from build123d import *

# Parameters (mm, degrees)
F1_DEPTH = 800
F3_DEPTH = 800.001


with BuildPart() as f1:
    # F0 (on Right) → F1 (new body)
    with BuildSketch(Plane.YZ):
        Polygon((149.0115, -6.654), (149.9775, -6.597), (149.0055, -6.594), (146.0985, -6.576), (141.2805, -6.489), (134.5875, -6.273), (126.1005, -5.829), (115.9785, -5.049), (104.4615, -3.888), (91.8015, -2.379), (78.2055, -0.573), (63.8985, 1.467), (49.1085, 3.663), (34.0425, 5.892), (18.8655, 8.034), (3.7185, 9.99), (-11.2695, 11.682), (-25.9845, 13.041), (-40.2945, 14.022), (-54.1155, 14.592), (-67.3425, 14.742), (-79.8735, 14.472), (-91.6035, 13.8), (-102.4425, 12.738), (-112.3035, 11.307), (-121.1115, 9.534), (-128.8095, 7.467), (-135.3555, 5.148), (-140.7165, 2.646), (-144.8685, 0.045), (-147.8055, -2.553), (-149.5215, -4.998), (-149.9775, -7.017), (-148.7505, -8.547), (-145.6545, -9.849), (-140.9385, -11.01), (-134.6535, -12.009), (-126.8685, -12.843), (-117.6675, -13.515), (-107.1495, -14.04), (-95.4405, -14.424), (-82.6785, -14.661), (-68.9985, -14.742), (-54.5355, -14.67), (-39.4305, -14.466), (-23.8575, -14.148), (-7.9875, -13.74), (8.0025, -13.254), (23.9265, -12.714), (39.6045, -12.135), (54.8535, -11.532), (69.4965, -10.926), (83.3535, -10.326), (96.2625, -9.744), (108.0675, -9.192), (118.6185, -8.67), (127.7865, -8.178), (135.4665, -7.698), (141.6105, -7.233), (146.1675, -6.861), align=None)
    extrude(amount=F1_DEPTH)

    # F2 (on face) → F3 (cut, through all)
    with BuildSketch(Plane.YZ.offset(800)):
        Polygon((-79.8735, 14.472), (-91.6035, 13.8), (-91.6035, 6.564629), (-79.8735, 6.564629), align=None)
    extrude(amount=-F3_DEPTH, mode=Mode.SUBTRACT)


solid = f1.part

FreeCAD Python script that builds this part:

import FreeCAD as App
import Part
import Sketcher

V = App.Vector
Q = App.Units.Quantity

doc = App.newDocument("Part")
body = doc.addObject("PartDesign::Body", "Body")

# Sketch on YZ plane
sketch1 = doc.addObject("Sketcher::SketchObject", "Sketch")
body.addObject(sketch1)
sketch1.AttachmentSupport = (doc.YZ_Plane, [""])
sketch1.MapMode = "FlatFace"
sketch1.addGeometry([
    Part.LineSegment(V(149.0115, -6.654, 0), V(149.9775, -6.597, 0)),  # 0
    Part.LineSegment(V(149.9775, -6.597, 0), V(149.0055, -6.594, 0)),  # 1
    Part.LineSegment(V(149.0055, -6.594, 0), V(146.0985, -6.576, 0)),  # 2
    Part.LineSegment(V(146.0985, -6.576, 0), V(141.2805, -6.489, 0)),  # 3
    Part.LineSegment(V(141.2805, -6.489, 0), V(134.5875, -6.273, 0)),  # 4
    Part.LineSegment(V(134.5875, -6.273, 0), V(126.1005, -5.829, 0)),  # 5
    Part.LineSegment(V(126.1005, -5.829, 0), V(115.9785, -5.049, 0)),  # 6
    Part.LineSegment(V(115.9785, -5.049, 0), V(104.4615, -3.888, 0)),  # 7
    Part.LineSegment(V(104.4615, -3.888, 0), V(91.8015, -2.379, 0)),  # 8
    Part.LineSegment(V(91.8015, -2.379, 0), V(78.2055, -0.573, 0)),  # 9
    Part.LineSegment(V(78.2055, -0.573, 0), V(63.8985, 1.467, 0)),  # 10
    Part.LineSegment(V(63.8985, 1.467, 0), V(49.1085, 3.663, 0)),  # 11
    Part.LineSegment(V(49.1085, 3.663, 0), V(34.0425, 5.892, 0)),  # 12
    Part.LineSegment(V(34.0425, 5.892, 0), V(18.8655, 8.034, 0)),  # 13
    Part.LineSegment(V(18.8655, 8.034, 0), V(3.7185, 9.99, 0)),  # 14
    Part.LineSegment(V(3.7185, 9.99, 0), V(-11.2695, 11.682, 0)),  # 15
    Part.LineSegment(V(-11.2695, 11.682, 0), V(-25.9845, 13.041, 0)),  # 16
    Part.LineSegment(V(-25.9845, 13.041, 0), V(-40.2945, 14.022, 0)),  # 17
    Part.LineSegment(V(-40.2945, 14.022, 0), V(-54.1155, 14.592, 0)),  # 18
    Part.LineSegment(V(-54.1155, 14.592, 0), V(-67.3425, 14.742, 0)),  # 19
    Part.LineSegment(V(-67.3425, 14.742, 0), V(-79.8735, 14.472, 0)),  # 20
    Part.LineSegment(V(-79.8735, 14.472, 0), V(-91.6035, 13.8, 0)),  # 21
    Part.LineSegment(V(-91.6035, 13.8, 0), V(-102.4425, 12.738, 0)),  # 22
    Part.LineSegment(V(-102.4425, 12.738, 0), V(-112.3035, 11.307, 0)),  # 23
    Part.LineSegment(V(-112.3035, 11.307, 0), V(-121.1115, 9.534, 0)),  # 24
    Part.LineSegment(V(-121.1115, 9.534, 0), V(-128.8095, 7.467, 0)),  # 25
    Part.LineSegment(V(-128.8095, 7.467, 0), V(-135.3555, 5.148, 0)),  # 26
    Part.LineSegment(V(-135.3555, 5.148, 0), V(-140.7165, 2.646, 0)),  # 27
    Part.LineSegment(V(-140.7165, 2.646, 0), V(-144.8685, 0.045, 0)),  # 28
    Part.LineSegment(V(-144.8685, 0.045, 0), V(-147.8055, -2.553, 0)),  # 29
    Part.LineSegment(V(-147.8055, -2.553, 0), V(-149.5215, -4.998, 0)),  # 30
    Part.LineSegment(V(-149.5215, -4.998, 0), V(-149.9775, -7.017, 0)),  # 31
    Part.LineSegment(V(-149.9775, -7.017, 0), V(-148.7505, -8.547, 0)),  # 32
    Part.LineSegment(V(-148.7505, -8.547, 0), V(-145.6545, -9.849, 0)),  # 33
    Part.LineSegment(V(-145.6545, -9.849, 0), V(-140.9385, -11.01, 0)),  # 34
    Part.LineSegment(V(-140.9385, -11.01, 0), V(-134.6535, -12.009, 0)),  # 35
    Part.LineSegment(V(-134.6535, -12.009, 0), V(-126.8685, -12.843, 0)),  # 36
    Part.LineSegment(V(-126.8685, -12.843, 0), V(-117.6675, -13.515, 0)),  # 37
    Part.LineSegment(V(-117.6675, -13.515, 0), V(-107.1495, -14.04, 0)),  # 38
    Part.LineSegment(V(-107.1495, -14.04, 0), V(-95.4405, -14.424, 0)),  # 39
    Part.LineSegment(V(-95.4405, -14.424, 0), V(-82.6785, -14.661, 0)),  # 40
    Part.LineSegment(V(-82.6785, -14.661, 0), V(-68.9985, -14.742, 0)),  # 41
    Part.LineSegment(V(-68.9985, -14.742, 0), V(-54.5355, -14.67, 0)),  # 42
    Part.LineSegment(V(-54.5355, -14.67, 0), V(-39.4305, -14.466, 0)),  # 43
    Part.LineSegment(V(-39.4305, -14.466, 0), V(-23.8575, -14.148, 0)),  # 44
    Part.LineSegment(V(-23.8575, -14.148, 0), V(-7.9875, -13.74, 0)),  # 45
    Part.LineSegment(V(-7.9875, -13.74, 0), V(8.0025, -13.254, 0)),  # 46
    Part.LineSegment(V(8.0025, -13.254, 0), V(23.9265, -12.714, 0)),  # 47
    Part.LineSegment(V(23.9265, -12.714, 0), V(39.6045, -12.135, 0)),  # 48
    Part.LineSegment(V(39.6045, -12.135, 0), V(54.8535, -11.532, 0)),  # 49
    Part.LineSegment(V(54.8535, -11.532, 0), V(69.4965, -10.926, 0)),  # 50
    Part.LineSegment(V(69.4965, -10.926, 0), V(83.3535, -10.326, 0)),  # 51
    Part.LineSegment(V(83.3535, -10.326, 0), V(96.2625, -9.744, 0)),  # 52
    Part.LineSegment(V(96.2625, -9.744, 0), V(108.0675, -9.192, 0)),  # 53
    Part.LineSegment(V(108.0675, -9.192, 0), V(118.6185, -8.67, 0)),  # 54
    Part.LineSegment(V(118.6185, -8.67, 0), V(127.7865, -8.178, 0)),  # 55
    Part.LineSegment(V(127.7865, -8.178, 0), V(135.4665, -7.698, 0)),  # 56
    Part.LineSegment(V(135.4665, -7.698, 0), V(141.6105, -7.233, 0)),  # 57
    Part.LineSegment(V(141.6105, -7.233, 0), V(146.1675, -6.861, 0)),  # 58
    Part.LineSegment(V(146.1675, -6.861, 0), V(149.0115, -6.654, 0)),  # 59
], False)
sketch1.addConstraint([
    Sketcher.Constraint("Coincident", 0, 2, 1, 1),
    Sketcher.Constraint("Coincident", 1, 2, 2, 1),
    Sketcher.Constraint("Coincident", 2, 2, 3, 1),
    Sketcher.Constraint("Coincident", 3, 2, 4, 1),
    Sketcher.Constraint("Coincident", 4, 2, 5, 1),
    Sketcher.Constraint("Coincident", 5, 2, 6, 1),
    Sketcher.Constraint("Coincident", 6, 2, 7, 1),
    Sketcher.Constraint("Coincident", 7, 2, 8, 1),
    Sketcher.Constraint("Coincident", 8, 2, 9, 1),
    Sketcher.Constraint("Coincident", 9, 2, 10, 1),
    Sketcher.Constraint("Coincident", 10, 2, 11, 1),
    Sketcher.Constraint("Coincident", 11, 2, 12, 1),
    Sketcher.Constraint("Coincident", 12, 2, 13, 1),
    Sketcher.Constraint("Coincident", 13, 2, 14, 1),
    Sketcher.Constraint("Coincident", 14, 2, 15, 1),
    Sketcher.Constraint("Coincident", 15, 2, 16, 1),
    Sketcher.Constraint("Coincident", 16, 2, 17, 1),
    Sketcher.Constraint("Coincident", 17, 2, 18, 1),
    Sketcher.Constraint("Coincident", 18, 2, 19, 1),
    Sketcher.Constraint("Coincident", 19, 2, 20, 1),
    Sketcher.Constraint("Coincident", 20, 2, 21, 1),
    Sketcher.Constraint("Coincident", 21, 2, 22, 1),
    Sketcher.Constraint("Coincident", 22, 2, 23, 1),
    Sketcher.Constraint("Coincident", 23, 2, 24, 1),
    Sketcher.Constraint("Coincident", 24, 2, 25, 1),
    Sketcher.Constraint("Coincident", 25, 2, 26, 1),
    Sketcher.Constraint("Coincident", 26, 2, 27, 1),
    Sketcher.Constraint("Coincident", 27, 2, 28, 1),
    Sketcher.Constraint("Coincident", 28, 2, 29, 1),
    Sketcher.Constraint("Coincident", 29, 2, 30, 1),
    Sketcher.Constraint("Coincident", 30, 2, 31, 1),
    Sketcher.Constraint("Coincident", 31, 2, 32, 1),
    Sketcher.Constraint("Coincident", 32, 2, 33, 1),
    Sketcher.Constraint("Coincident", 33, 2, 34, 1),
    Sketcher.Constraint("Coincident", 34, 2, 35, 1),
    Sketcher.Constraint("Coincident", 35, 2, 36, 1),
    Sketcher.Constraint("Coincident", 36, 2, 37, 1),
    Sketcher.Constraint("Coincident", 37, 2, 38, 1),
    Sketcher.Constraint("Coincident", 38, 2, 39, 1),
    Sketcher.Constraint("Coincident", 39, 2, 40, 1),
    Sketcher.Constraint("Coincident", 40, 2, 41, 1),
    Sketcher.Constraint("Coincident", 41, 2, 42, 1),
    Sketcher.Constraint("Coincident", 42, 2, 43, 1),
    Sketcher.Constraint("Coincident", 43, 2, 44, 1),
    Sketcher.Constraint("Coincident", 44, 2, 45, 1),
    Sketcher.Constraint("Coincident", 45, 2, 46, 1),
    Sketcher.Constraint("Coincident", 46, 2, 47, 1),
    Sketcher.Constraint("Coincident", 47, 2, 48, 1),
    Sketcher.Constraint("Coincident", 48, 2, 49, 1),
    Sketcher.Constraint("Coincident", 49, 2, 50, 1),
    Sketcher.Constraint("Coincident", 50, 2, 51, 1),
    Sketcher.Constraint("Coincident", 51, 2, 52, 1),
    Sketcher.Constraint("Coincident", 52, 2, 53, 1),
    Sketcher.Constraint("Coincident", 53, 2, 54, 1),
    Sketcher.Constraint("Coincident", 54, 2, 55, 1),
    Sketcher.Constraint("Coincident", 55, 2, 56, 1),
    Sketcher.Constraint("Coincident", 56, 2, 57, 1),
    Sketcher.Constraint("Coincident", 57, 2, 58, 1),
    Sketcher.Constraint("Coincident", 58, 2, 59, 1),
    Sketcher.Constraint("Coincident", 59, 2, 0, 1),
    Sketcher.Constraint("DistanceY", -1, 1, 21, 2, Q("13.8 mm")),
    Sketcher.Constraint("DistanceY", 4, 2, 9, 2, Q("5.7 mm")),
    Sketcher.Constraint("DistanceX", 22, 2, 19, 2, Q("35.1 mm")),
    Sketcher.Constraint("DistanceX", 23, 2, 21, 2, Q("20.7 mm")),
    Sketcher.Constraint("DistanceY", 50, 2, 51, 2, Q("0.6 mm")),
    Sketcher.Constraint("DistanceY", -1, 1, 14, 2, Q("9.99 mm")),
    Sketcher.Constraint("DistanceY", 34, 2, -1, 1, Q("11.01 mm")),
    Sketcher.Constraint("DistanceY", 38, 2, -1, 1, Q("14.04 mm")),
    Sketcher.Constraint("DistanceY", 42, 2, -1, 1, Q("14.67 mm")),
    Sketcher.Constraint("DistanceY", 45, 2, -1, 1, Q("13.74 mm")),
    Sketcher.Constraint("DistanceY", 54, 2, -1, 1, Q("8.67 mm")),
    Sketcher.Constraint("DistanceX", 4, 2, 0, 2, Q("15.39 mm")),
    Sketcher.Constraint("DistanceX", 5, 2, 3, 2, Q("15.18 mm")),
    Sketcher.Constraint("DistanceY", 3, 2, 5, 2, Q("0.66 mm")),
    Sketcher.Constraint("DistanceY", 5, 2, 6, 2, Q("0.78 mm")),
    Sketcher.Constraint("DistanceX", 6, 2, 2, 2, Q("30.12 mm")),
    Sketcher.Constraint("DistanceX", 8, 2, 7, 2, Q("12.66 mm")),
    Sketcher.Constraint("DistanceY", 6, 2, 8, 2, Q("2.67 mm")),
    Sketcher.Constraint("DistanceY", 9, 2, 10, 2, Q("2.04 mm")),
    Sketcher.Constraint("DistanceX", 10, 2, 6, 2, Q("52.08 mm")),
    Sketcher.Constraint("DistanceX", 11, 2, 10, 2, Q("14.79 mm")),
    Sketcher.Constraint("DistanceY", 7, 2, 12, 2, Q("9.78 mm")),
    Sketcher.Constraint("DistanceX", 13, 2, 9, 2, Q("59.34 mm")),
    Sketcher.Constraint("DistanceX", 14, 2, 11, 2, Q("45.39 mm")),
    Sketcher.Constraint("DistanceY", 12, 2, 15, 2, Q("5.79 mm")),
    Sketcher.Constraint("DistanceX", 16, 2, 13, 2, Q("44.85 mm")),
    Sketcher.Constraint("DistanceX", 17, 2, 16, 2, Q("14.31 mm")),
    Sketcher.Constraint("DistanceY", 15, 2, 17, 2, Q("2.34 mm")),
    Sketcher.Constraint("DistanceY", 17, 2, 18, 2, Q("0.57 mm")),
    Sketcher.Constraint("DistanceY", 18, 2, 19, 2, Q("0.15 mm")),
    Sketcher.Constraint("DistanceY", 20, 2, 19, 2, Q("0.27 mm")),
    Sketcher.Constraint("DistanceX", 21, 2, 20, 2, Q("11.73 mm")),
    Sketcher.Constraint("DistanceY", 25, 2, 23, 2, Q("3.84 mm")),
    Sketcher.Constraint("DistanceY", 26, 2, 22, 2, Q("7.59 mm")),
    Sketcher.Constraint("DistanceX", 29, 2, 26, 2, Q("12.45 mm")),
    Sketcher.Constraint("DistanceY", 29, 2, 25, 2, Q("10.02 mm")),
    Sketcher.Constraint("DistanceY", 32, 2, 31, 2, Q("1.53 mm")),
    Sketcher.Constraint("DistanceY", 35, 2, 33, 2, Q("2.16 mm")),
    Sketcher.Constraint("DistanceX", 34, 2, 36, 2, Q("14.07 mm")),
    Sketcher.Constraint("DistanceY", 36, 2, 25, 2, Q("20.31 mm")),
    Sketcher.Constraint("DistanceX", 40, 2, 41, 2, Q("13.68 mm")),
    Sketcher.Constraint("DistanceX", 42, 2, 18, 2, Q("0.42 mm")),
    Sketcher.Constraint("DistanceY", 44, 2, 15, 2, Q("25.83 mm")),
    Sketcher.Constraint("DistanceX", 44, 2, 45, 2, Q("15.87 mm")),
    Sketcher.Constraint("DistanceX", 45, 2, 46, 2, Q("15.99 mm")),
    Sketcher.Constraint("DistanceY", 46, 2, 47, 2, Q("0.54 mm")),
    Sketcher.Constraint("DistanceX", 6, 2, 54, 2, Q("2.64 mm")),
    Sketcher.Constraint("DistanceX", 55, 2, 56, 2, Q("7.68 mm")),
    Sketcher.Constraint("DistanceY", 55, 2, 56, 2, Q("0.48 mm")),
    Sketcher.Constraint("DistanceX", 3, 2, 57, 2, Q("0.33 mm")),
    Sketcher.Constraint("DistanceY", 57, 2, 4, 2, Q("0.96 mm")),
    Sketcher.Constraint("DistanceX", 58, 2, 0, 2, Q("3.81 mm")),
    Sketcher.Constraint("DistanceY", 59, 2, 1, 2, Q("0.06 mm")),
    Sketcher.Constraint("DistanceY", 0, 2, -1, 1, Q("6.597 mm")),
    Sketcher.Constraint("DistanceY", 1, 2, -1, 1, Q("6.594 mm")),
    Sketcher.Constraint("DistanceY", 2, 2, -1, 1, Q("6.576 mm")),
    Sketcher.Constraint("DistanceY", 3, 2, -1, 1, Q("6.489 mm")),
    Sketcher.Constraint("DistanceY", 4, 2, -1, 1, Q("6.273 mm")),
    Sketcher.Constraint("DistanceY", 7, 2, -1, 1, Q("3.888 mm")),
    Sketcher.Constraint("DistanceY", -1, 1, 11, 2, Q("3.663 mm")),
    Sketcher.Constraint("DistanceY", -1, 1, 13, 2, Q("8.034 mm")),
    Sketcher.Constraint("DistanceY", -1, 1, 16, 2, Q("13.041 mm")),
    Sketcher.Constraint("DistanceY", -1, 1, 22, 2, Q("12.738 mm")),
    Sketcher.Constraint("DistanceY", -1, 1, 23, 2, Q("11.307 mm")),
    Sketcher.Constraint("DistanceY", -1, 1, 24, 2, Q("9.534 mm")),
    Sketcher.Constraint("DistanceY", -1, 1, 27, 2, Q("2.646 mm")),
    Sketcher.Constraint("DistanceY", -1, 1, 28, 2, Q("0.045 mm")),
    Sketcher.Constraint("DistanceY", 30, 2, -1, 1, Q("4.998 mm")),
    Sketcher.Constraint("DistanceY", 31, 2, -1, 1, Q("7.017 mm")),
    Sketcher.Constraint("DistanceY", 33, 2, -1, 1, Q("9.849 mm")),
    Sketcher.Constraint("DistanceY", 37, 2, -1, 1, Q("13.515 mm")),
    Sketcher.Constraint("DistanceY", 39, 2, -1, 1, Q("14.424 mm")),
    Sketcher.Constraint("DistanceY", 40, 2, -1, 1, Q("14.661 mm")),
    Sketcher.Constraint("DistanceY", 41, 2, -1, 1, Q("14.742 mm")),
    Sketcher.Constraint("DistanceY", 43, 2, -1, 1, Q("14.466 mm")),
    Sketcher.Constraint("DistanceY", 46, 2, -1, 1, Q("13.254 mm")),
    Sketcher.Constraint("DistanceY", 48, 2, -1, 1, Q("12.135 mm")),
    Sketcher.Constraint("DistanceY", 49, 2, -1, 1, Q("11.532 mm")),
    Sketcher.Constraint("DistanceY", 50, 2, -1, 1, Q("10.926 mm")),
    Sketcher.Constraint("DistanceY", 52, 2, -1, 1, Q("9.744 mm")),
    Sketcher.Constraint("DistanceY", 53, 2, -1, 1, Q("9.192 mm")),
    Sketcher.Constraint("DistanceY", 55, 2, -1, 1, Q("8.178 mm")),
    Sketcher.Constraint("DistanceY", 58, 2, -1, 1, Q("6.861 mm")),
    Sketcher.Constraint("DistanceX", 1, 2, 0, 2, Q("0.972 mm")),
    Sketcher.Constraint("DistanceX", 2, 2, 1, 2, Q("2.907 mm")),
    Sketcher.Constraint("DistanceX", 3, 2, 2, 2, Q("4.818 mm")),
    Sketcher.Constraint("DistanceX", 7, 2, 6, 2, Q("11.517 mm")),
    Sketcher.Constraint("DistanceX", 9, 2, 8, 2, Q("13.596 mm")),
    Sketcher.Constraint("DistanceX", 12, 2, 11, 2, Q("15.066 mm")),
    Sketcher.Constraint("DistanceX", 15, 2, 14, 2, Q("14.988 mm")),
    Sketcher.Constraint("DistanceX", 18, 2, 17, 2, Q("13.821 mm")),
    Sketcher.Constraint("DistanceX", 19, 2, 18, 2, Q("13.227 mm")),
    Sketcher.Constraint("DistanceX", 20, 2, 19, 2, Q("12.531 mm")),
    Sketcher.Constraint("DistanceX", 24, 2, 23, 2, Q("8.808 mm")),
    Sketcher.Constraint("DistanceX", 25, 2, 24, 2, Q("7.698 mm")),
    Sketcher.Constraint("DistanceX", 26, 2, 25, 2, Q("6.546 mm")),
    Sketcher.Constraint("DistanceX", 27, 2, 26, 2, Q("5.361 mm")),
    Sketcher.Constraint("DistanceX", 28, 2, 27, 2, Q("4.152 mm")),
    Sketcher.Constraint("DistanceX", 30, 2, 29, 2, Q("1.716 mm")),
    Sketcher.Constraint("DistanceX", 31, 2, 30, 2, Q("0.456 mm")),
    Sketcher.Constraint("DistanceX", 31, 2, 32, 2, Q("1.227 mm")),
    Sketcher.Constraint("DistanceX", 32, 2, 33, 2, Q("3.096 mm")),
    Sketcher.Constraint("DistanceX", 33, 2, 34, 2, Q("4.716 mm")),
    Sketcher.Constraint("DistanceX", 34, 2, 35, 2, Q("6.285 mm")),
    Sketcher.Constraint("DistanceX", 36, 2, 37, 2, Q("9.201 mm")),
    Sketcher.Constraint("DistanceX", 37, 2, 38, 2, Q("10.518 mm")),
    Sketcher.Constraint("DistanceX", 38, 2, 39, 2, Q("11.709 mm")),
    Sketcher.Constraint("DistanceX", 39, 2, 40, 2, Q("12.762 mm")),
    Sketcher.Constraint("DistanceX", 42, 2, 43, 2, Q("15.105 mm")),
    Sketcher.Constraint("DistanceX", 43, 2, 44, 2, Q("15.573 mm")),
    Sketcher.Constraint("DistanceX", 46, 2, 47, 2, Q("15.924 mm")),
    Sketcher.Constraint("DistanceX", 47, 2, 48, 2, Q("15.678 mm")),
    Sketcher.Constraint("DistanceX", 48, 2, 49, 2, Q("15.249 mm")),
    Sketcher.Constraint("DistanceX", 50, 2, 9, 2, Q("8.709 mm")),
    Sketcher.Constraint("DistanceX", 9, 2, 51, 2, Q("5.148 mm")),
    Sketcher.Constraint("DistanceX", 8, 2, 52, 2, Q("4.461 mm")),
    Sketcher.Constraint("DistanceX", 7, 2, 53, 2, Q("3.606 mm")),
    Sketcher.Constraint("DistanceX", 5, 2, 55, 2, Q("1.686 mm")),
    Sketcher.Constraint("DistanceX", 1, 2, 59, 2, Q("0.006 mm")),
    Sketcher.Constraint("DistanceX", -1, 1, 0, 2, Q("149.9775 mm")),
])
pad1 = doc.addObject("PartDesign::Pad", "Pad")
body.addObject(pad1)
pad1.Profile = sketch1
pad1.Length = 800

# Sketch on YZ plane
sketch2 = doc.addObject("Sketcher::SketchObject", "Sketch001")
body.addObject(sketch2)
sketch2.AttachmentSupport = (doc.YZ_Plane, [""])
sketch2.MapMode = "FlatFace"
sketch2.AttachmentOffset = App.Placement(V(0, 0, 800), App.Rotation())
sketch2.addGeometry([
    Part.LineSegment(V(-79.8735, 14.472, 0), V(-91.6035, 13.8, 0)),
    Part.LineSegment(V(-91.6035, 13.8, 0), V(-91.6035, 6.564629, 0)),
    Part.LineSegment(V(-91.6035, 6.564629, 0), V(-79.8735, 6.564629, 0)),
    Part.LineSegment(V(-79.8735, 6.564629, 0), V(-79.8735, 14.472, 0)),
], False)
sketch2.addConstraint([
    Sketcher.Constraint("Coincident", 0, 2, 1, 1),
    Sketcher.Constraint("Coincident", 1, 2, 2, 1),
    Sketcher.Constraint("Coincident", 2, 2, 3, 1),
    Sketcher.Constraint("Coincident", 3, 2, 0, 1),
    Sketcher.Constraint("Vertical", 1),
    Sketcher.Constraint("Horizontal", 2),
    Sketcher.Constraint("Vertical", 3),
    Sketcher.Constraint("DistanceX", 2, 1, 2, 2, Q("11.73 mm")),
    Sketcher.Constraint("DistanceY", -1, 1, 0, 2, Q("13.8 mm")),
    Sketcher.Constraint("DistanceY", -1, 1, 3, 2, Q("14.472 mm")),
    Sketcher.Constraint("DistanceY", 1, 2, 1, 1, Q("7.235371 mm")),
    Sketcher.Constraint("DistanceX", 0, 2, -1, 1, Q("91.6035 mm")),
])
pocket1 = doc.addObject("PartDesign::Pocket", "Pocket")
body.addObject(pocket1)
pocket1.Profile = sketch2
pocket1.Type = "ThroughAll"

doc.recompute()
